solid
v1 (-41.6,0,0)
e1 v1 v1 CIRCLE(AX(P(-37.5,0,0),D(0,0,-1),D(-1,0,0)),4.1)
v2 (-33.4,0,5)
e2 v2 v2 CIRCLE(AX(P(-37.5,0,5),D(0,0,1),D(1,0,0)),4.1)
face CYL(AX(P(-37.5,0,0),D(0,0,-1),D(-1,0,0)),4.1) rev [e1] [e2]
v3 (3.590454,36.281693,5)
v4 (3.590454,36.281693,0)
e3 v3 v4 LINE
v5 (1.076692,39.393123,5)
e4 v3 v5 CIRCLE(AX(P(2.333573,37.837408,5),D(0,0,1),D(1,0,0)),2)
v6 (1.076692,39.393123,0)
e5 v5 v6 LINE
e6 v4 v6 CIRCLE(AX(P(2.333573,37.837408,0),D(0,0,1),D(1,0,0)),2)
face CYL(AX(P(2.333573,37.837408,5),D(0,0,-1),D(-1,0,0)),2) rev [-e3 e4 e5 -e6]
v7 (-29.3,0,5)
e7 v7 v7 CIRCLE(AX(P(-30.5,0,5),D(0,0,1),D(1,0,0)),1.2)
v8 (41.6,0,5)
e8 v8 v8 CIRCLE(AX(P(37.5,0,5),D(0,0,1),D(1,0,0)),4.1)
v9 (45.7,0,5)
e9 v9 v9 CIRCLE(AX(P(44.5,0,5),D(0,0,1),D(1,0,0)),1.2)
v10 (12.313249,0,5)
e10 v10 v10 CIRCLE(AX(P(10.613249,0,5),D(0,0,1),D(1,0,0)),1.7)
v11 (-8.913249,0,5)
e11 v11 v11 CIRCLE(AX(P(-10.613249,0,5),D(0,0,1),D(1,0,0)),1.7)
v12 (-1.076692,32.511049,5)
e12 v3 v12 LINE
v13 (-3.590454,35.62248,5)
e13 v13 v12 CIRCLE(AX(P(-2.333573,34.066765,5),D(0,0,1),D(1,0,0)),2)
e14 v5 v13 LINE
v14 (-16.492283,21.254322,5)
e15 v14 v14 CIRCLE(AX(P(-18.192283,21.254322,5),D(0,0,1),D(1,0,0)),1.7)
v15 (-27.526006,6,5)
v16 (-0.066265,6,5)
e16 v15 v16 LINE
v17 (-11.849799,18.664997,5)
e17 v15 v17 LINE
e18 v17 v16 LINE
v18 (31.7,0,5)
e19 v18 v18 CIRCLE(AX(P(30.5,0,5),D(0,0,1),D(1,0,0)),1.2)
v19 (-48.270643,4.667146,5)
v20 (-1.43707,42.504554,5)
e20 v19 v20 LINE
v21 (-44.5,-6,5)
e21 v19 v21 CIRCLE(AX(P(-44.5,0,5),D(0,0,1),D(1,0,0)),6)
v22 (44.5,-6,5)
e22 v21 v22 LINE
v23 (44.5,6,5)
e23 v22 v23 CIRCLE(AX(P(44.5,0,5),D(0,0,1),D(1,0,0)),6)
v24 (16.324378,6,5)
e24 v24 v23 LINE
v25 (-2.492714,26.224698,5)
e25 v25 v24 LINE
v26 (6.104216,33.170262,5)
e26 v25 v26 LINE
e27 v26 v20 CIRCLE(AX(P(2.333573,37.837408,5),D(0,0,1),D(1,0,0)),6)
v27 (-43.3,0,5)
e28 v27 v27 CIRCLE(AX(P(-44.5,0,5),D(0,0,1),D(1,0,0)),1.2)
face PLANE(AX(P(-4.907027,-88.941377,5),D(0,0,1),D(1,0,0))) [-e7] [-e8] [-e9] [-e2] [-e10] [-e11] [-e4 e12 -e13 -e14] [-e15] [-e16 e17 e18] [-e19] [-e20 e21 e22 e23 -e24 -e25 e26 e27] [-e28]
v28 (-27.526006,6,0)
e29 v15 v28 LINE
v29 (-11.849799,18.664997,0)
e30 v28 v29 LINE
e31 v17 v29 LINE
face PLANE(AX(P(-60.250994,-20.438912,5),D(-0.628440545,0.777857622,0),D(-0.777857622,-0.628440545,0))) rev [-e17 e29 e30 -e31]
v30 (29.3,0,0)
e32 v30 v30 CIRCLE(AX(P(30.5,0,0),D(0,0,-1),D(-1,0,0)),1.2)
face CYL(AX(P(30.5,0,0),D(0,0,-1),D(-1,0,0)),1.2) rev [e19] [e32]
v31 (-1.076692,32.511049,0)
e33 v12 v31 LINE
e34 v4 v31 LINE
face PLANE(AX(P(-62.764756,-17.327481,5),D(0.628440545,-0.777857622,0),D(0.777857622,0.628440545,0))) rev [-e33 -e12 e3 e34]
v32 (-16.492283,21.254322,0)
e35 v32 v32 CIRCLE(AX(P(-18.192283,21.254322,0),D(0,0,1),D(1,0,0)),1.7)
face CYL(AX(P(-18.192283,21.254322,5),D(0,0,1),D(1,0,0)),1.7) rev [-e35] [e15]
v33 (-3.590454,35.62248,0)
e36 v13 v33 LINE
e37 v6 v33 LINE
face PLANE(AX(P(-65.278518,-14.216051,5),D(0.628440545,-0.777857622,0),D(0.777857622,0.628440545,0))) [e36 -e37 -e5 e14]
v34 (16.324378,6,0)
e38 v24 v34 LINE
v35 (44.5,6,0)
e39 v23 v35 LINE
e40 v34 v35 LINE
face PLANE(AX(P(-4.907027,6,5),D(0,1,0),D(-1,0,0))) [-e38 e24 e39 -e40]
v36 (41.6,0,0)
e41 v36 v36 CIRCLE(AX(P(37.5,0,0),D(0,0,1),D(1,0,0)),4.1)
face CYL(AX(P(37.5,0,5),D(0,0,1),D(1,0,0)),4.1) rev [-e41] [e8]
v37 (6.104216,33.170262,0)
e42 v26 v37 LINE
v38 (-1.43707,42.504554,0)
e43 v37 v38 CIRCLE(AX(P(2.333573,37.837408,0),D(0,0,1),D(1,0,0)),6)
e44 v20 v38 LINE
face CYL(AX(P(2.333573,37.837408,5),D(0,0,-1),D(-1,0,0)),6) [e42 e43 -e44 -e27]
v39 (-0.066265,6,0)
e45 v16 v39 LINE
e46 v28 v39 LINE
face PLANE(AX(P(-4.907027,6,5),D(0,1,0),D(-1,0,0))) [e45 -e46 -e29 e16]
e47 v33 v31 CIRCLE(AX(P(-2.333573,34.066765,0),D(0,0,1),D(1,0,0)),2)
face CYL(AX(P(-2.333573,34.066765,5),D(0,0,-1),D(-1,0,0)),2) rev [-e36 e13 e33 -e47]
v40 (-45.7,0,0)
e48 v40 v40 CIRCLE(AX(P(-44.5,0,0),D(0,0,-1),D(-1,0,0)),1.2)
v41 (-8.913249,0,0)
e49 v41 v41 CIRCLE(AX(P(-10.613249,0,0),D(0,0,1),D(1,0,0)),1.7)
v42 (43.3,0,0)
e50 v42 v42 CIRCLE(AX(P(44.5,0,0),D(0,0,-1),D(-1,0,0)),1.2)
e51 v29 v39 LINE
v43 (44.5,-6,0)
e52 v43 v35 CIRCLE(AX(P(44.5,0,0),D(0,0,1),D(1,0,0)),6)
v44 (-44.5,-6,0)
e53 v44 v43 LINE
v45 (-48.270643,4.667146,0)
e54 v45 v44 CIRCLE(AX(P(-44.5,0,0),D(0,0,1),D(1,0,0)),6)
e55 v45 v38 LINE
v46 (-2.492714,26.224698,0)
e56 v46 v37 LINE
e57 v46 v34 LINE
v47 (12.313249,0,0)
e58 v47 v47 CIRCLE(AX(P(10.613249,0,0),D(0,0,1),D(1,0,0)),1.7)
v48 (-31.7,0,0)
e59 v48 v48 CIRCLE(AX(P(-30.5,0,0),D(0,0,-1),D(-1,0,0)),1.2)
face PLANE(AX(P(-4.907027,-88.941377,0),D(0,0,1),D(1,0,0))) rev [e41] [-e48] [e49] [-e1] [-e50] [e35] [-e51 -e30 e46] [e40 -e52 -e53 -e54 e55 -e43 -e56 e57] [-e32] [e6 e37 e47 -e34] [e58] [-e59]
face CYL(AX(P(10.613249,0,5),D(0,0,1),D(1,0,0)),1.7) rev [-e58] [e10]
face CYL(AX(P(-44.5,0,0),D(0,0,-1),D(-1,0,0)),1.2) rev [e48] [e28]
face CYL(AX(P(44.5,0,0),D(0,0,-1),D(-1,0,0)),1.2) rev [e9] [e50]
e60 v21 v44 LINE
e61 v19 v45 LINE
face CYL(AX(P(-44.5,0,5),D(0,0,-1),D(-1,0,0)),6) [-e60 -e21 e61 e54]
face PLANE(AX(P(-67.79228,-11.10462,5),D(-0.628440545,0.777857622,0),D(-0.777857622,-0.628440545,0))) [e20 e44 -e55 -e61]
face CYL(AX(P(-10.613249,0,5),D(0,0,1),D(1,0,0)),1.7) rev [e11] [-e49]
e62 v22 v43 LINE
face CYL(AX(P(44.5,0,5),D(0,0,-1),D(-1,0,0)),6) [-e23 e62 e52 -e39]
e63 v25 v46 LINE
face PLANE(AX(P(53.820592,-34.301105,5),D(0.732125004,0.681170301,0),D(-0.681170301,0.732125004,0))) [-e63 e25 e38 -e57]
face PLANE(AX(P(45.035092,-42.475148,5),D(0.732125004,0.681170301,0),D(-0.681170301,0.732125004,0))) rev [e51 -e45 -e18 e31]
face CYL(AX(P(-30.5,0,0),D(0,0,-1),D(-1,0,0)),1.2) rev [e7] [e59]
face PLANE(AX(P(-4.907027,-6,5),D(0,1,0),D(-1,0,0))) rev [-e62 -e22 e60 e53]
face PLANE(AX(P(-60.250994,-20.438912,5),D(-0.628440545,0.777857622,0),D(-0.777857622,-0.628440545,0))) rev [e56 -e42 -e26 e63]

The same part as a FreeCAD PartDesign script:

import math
import FreeCAD as App
import Part
import Sketcher


def add_polygon(sketch, points):
    """Adds a closed chain of lines whose ends are joined by coincident constraints."""
    first, n = sketch.GeometryCount, len(points)
    for a, b in zip(points, points[1:] + points[:1]):
        sketch.addGeometry(Part.LineSegment(App.Vector(*a, 0), App.Vector(*b, 0)), False)
    for i in range(n):
        sketch.addConstraint(Sketcher.Constraint("Coincident", first + i, 2, first + (i + 1) % n, 1))

doc = App.newDocument("Part")
body = doc.addObject("PartDesign::Body", "Body")

# Sketch on XY plane
sketch1 = body.newObject("Sketcher::SketchObject", "Sketch")
sketch1.AttachmentSupport = (doc.getObject("XY_Plane"), [""])
sketch1.MapMode = "FlatFace"
sketch1.addGeometry(Part.LineSegment(App.Vector(-2.5, 26.2, 0), App.Vector(6.1, 33.2, 0)), False)  # 0
sketch1.addGeometry(Part.ArcOfCircle(Part.Circle(App.Vector(2.3, 37.8, 0), App.Vector(0, 0, 1), 6), math.radians(-51), math.radians(129)), False)  # 1
sketch1.addGeometry(Part.LineSegment(App.Vector(-1.4, 42.5, 0), App.Vector(-48.3, 4.7, 0)), False)  # 2
sketch1.addGeometry(Part.ArcOfCircle(Part.Circle(App.Vector(-44.5, 0, 0), App.Vector(0, 0, 1), 6), math.radians(129), math.radians(270)), False)  # 3
sketch1.addGeometry(Part.LineSegment(App.Vector(-44.5, -6, 0), App.Vector(44.5, -6, 0)), False)  # 4
sketch1.addGeometry(Part.ArcOfCircle(Part.Circle(App.Vector(44.5, 0, 0), App.Vector(0, 0, 1), 6), math.radians(-90), math.radians(90)), False)  # 5
sketch1.addGeometry(Part.LineSegment(App.Vector(44.5, 6, 0), App.Vector(16.3, 6, 0)), False)  # 6
sketch1.addGeometry(Part.LineSegment(App.Vector(16.3, 6, 0), App.Vector(-2.5, 26.2, 0)), False)  # 7
add_polygon(sketch1, [(-0.1, 6), (-27.5, 6), (-11.8, 18.7)])  # lines 8-10
sketch1.addGeometry(Part.ArcOfCircle(Part.Circle(App.Vector(-2.3, 34.1, 0), App.Vector(0, 0, 1), 2), math.radians(129), math.radians(309)), False)  # 11
sketch1.addGeometry(Part.LineSegment(App.Vector(-3.6, 35.6, 0), App.Vector(1.1, 39.4, 0)), False)  # 12
sketch1.addGeometry(Part.ArcOfCircle(Part.Circle(App.Vector(2.3, 37.8, 0), App.Vector(0, 0, 1), 2), math.radians(-51), math.radians(129)), False)  # 13
sketch1.addGeometry(Part.LineSegment(App.Vector(3.6, 36.3, 0), App.Vector(-1.1, 32.5, 0)), False)  # 14
sketch1.addConstraint([
    Sketcher.Constraint("Tangent", 0, 2, 1, 1),
    Sketcher.Constraint("Tangent", 1, 2, 2, 1),
    Sketcher.Constraint("Tangent", 2, 2, 3, 1),
    Sketcher.Constraint("Tangent", 3, 2, 4, 1),
    Sketcher.Constraint("Tangent", 4, 2, 5, 1),
    Sketcher.Constraint("Tangent", 5, 2, 6, 1),
    Sketcher.Constraint("Coincident", 6, 2, 7, 1),
    Sketcher.Constraint("Coincident", 7, 2, 0, 1),
    Sketcher.Constraint("Tangent", 11, 1, 12, 1),
    Sketcher.Constraint("Tangent", 12, 2, 13, 2),
    Sketcher.Constraint("Tangent", 13, 1, 14, 1),
    Sketcher.Constraint("Tangent", 14, 2, 11, 2),
    Sketcher.Constraint("Horizontal", 4),
    Sketcher.Constraint("Horizontal", 6),
    Sketcher.Constraint("Horizontal", 8),
    Sketcher.Constraint("Coincident", 13, 3, 1, 3),
    Sketcher.Constraint("Equal", 1, 3),
    Sketcher.Constraint("Equal", 3, 5),
    Sketcher.Constraint("Equal", 11, 13),
    Sketcher.Constraint("Symmetric", 3, 3, 5, 3, -1, 1),
    Sketcher.Constraint("Parallel", 0, 2),
    Sketcher.Constraint("Parallel", 2, 9),
    Sketcher.Constraint("Parallel", 7, 10),
    Sketcher.Constraint("Parallel", 9, 12),
    Sketcher.Constraint("Horizontal", 6, 2, 8, 2),
    Sketcher.Constraint("Radius", 1, 6.0),
    Sketcher.Constraint("Radius", 11, 2.0),
    Sketcher.Constraint("DistanceX", 4, 1, 4, 2, 89.0),
    Sketcher.Constraint("Distance", 12, 6.0),
    Sketcher.Constraint("DistanceX", 6, 2, 6, 1, 28.175622),
    Sketcher.Constraint("DistanceX", 8, 2, 8, 1, 27.459741),
    Sketcher.Constraint("DistanceY", -1, 1, 7, 2, 26.224698),
    Sketcher.Constraint("DistanceX", 9, 2, -1, 1, 11.849799),
    Sketcher.Constraint("DistanceY", 9, 2, 7, 2, 7.559702),
    Sketcher.Constraint("Distance", 0, 11.052062),
])
pad1 = body.newObject("PartDesign::Pad", "Pad")
pad1.Profile = sketch1
pad1.Length = 5

# Sketch on XY plane
sketch2 = body.newObject("Sketcher::SketchObject", "Sketch001")
sketch2.AttachmentSupport = (doc.getObject("XY_Plane"), [""])
sketch2.MapMode = "FlatFace"
sketch2.addGeometry([
    Part.Circle(App.Vector(-44.5, 0, 0), App.Vector(0, 0, 1), 1.2),
    Part.Circle(App.Vector(-30.5, 0, 0), App.Vector(0, 0, 1), 1.2),
], False)
sketch2.addConstraint([
    Sketcher.Constraint("Equal", 0, 1),
    Sketcher.Constraint("PointOnObject", 0, 3, -1),
    Sketcher.Constraint("PointOnObject", 1, 3, -1),
    Sketcher.Constraint("Diameter", 0, 2.4),
    Sketcher.Constraint("DistanceX", 0, 3, 1, 3, 14.0),
    Sketcher.Constraint("DistanceX", 0, 3, -1, 1, 44.5),
])
doc.recompute()
hole = body.newObject("PartDesign::Hole", "Hole")
hole.Profile = sketch2
hole.ThreadType = "None"
hole.Diameter = 2.4
hole.DepthType = "Dimension"
hole.Depth = 10
hole.DrillPoint = "Angled"
hole.DrillPointAngle = 118
hole.Reversed = True

# Sketch on XY plane
sketch3 = body.newObject("Sketcher::SketchObject", "Sketch002")
sketch3.AttachmentSupport = (doc.getObject("XY_Plane"), [""])
sketch3.MapMode = "FlatFace"
sketch3.addGeometry(Part.Circle(App.Vector(-37.5, 0, 0), App.Vector(0, 0, 1), 4.1), False)
sketch3.addConstraint([
    Sketcher.Constraint("PointOnObject", 0, 3, -1),
    Sketcher.Constraint("Diameter", 0, 8.2),
    Sketcher.Constraint("DistanceX", 0, 3, -1, 1, 37.5),
])
doc.recompute()
hole2 = body.newObject("PartDesign::Hole", "Hole001")
hole2.Profile = sketch3
hole2.ThreadType = "None"
hole2.Diameter = 8.2
hole2.DepthType = "Dimension"
hole2.Depth = 10
hole2.DrillPoint = "Angled"
hole2.DrillPointAngle = 118
hole2.Reversed = True

# Sketch on XY plane
sketch4 = body.newObject("Sketcher::SketchObject", "Sketch003")
sketch4.AttachmentSupport = (doc.getObject("XY_Plane"), [""])
sketch4.MapMode = "FlatFace"
sketch4.addGeometry([
    Part.Circle(App.Vector(44.5, 0, 0), App.Vector(0, 0, 1), 1.2),
    Part.Circle(App.Vector(30.5, 0, 0), App.Vector(0, 0, 1), 1.2),
], False)
sketch4.addConstraint([
    Sketcher.Constraint("Equal", 0, 1),
    Sketcher.Constraint("PointOnObject", 0, 3, -1),
    Sketcher.Constraint("PointOnObject", 1, 3, -1),
    Sketcher.Constraint("Diameter", 0, 2.4),
    Sketcher.Constraint("DistanceX", 1, 3, 0, 3, 14.0),
    Sketcher.Constraint("DistanceX", -1, 1, 0, 3, 44.5),
])
doc.recompute()
hole3 = body.newObject("PartDesign::Hole", "Hole002")
hole3.Profile = sketch4
hole3.ThreadType = "None"
hole3.Diameter = 2.4
hole3.DepthType = "Dimension"
hole3.Depth = 10
hole3.DrillPoint = "Angled"
hole3.DrillPointAngle = 118
hole3.Reversed = True

# Sketch on XY plane
sketch5 = body.newObject("Sketcher::SketchObject", "Sketch004")
sketch5.AttachmentSupport = (doc.getObject("XY_Plane"), [""])
sketch5.MapMode = "FlatFace"
sketch5.AttachmentOffset = App.Placement(App.Vector(0, 0, 5), App.Rotation())
sketch5.addGeometry(Part.Circle(App.Vector(37.5, 0, 0), App.Vector(0, 0, 1), 4.1), False)
sketch5.addConstraint([
    Sketcher.Constraint("PointOnObject", 0, 3, -1),
    Sketcher.Constraint("Diameter", 0, 8.2),
    Sketcher.Constraint("DistanceX", -1, 1, 0, 3, 37.5),
])
doc.recompute()
hole4 = body.newObject("PartDesign::Hole", "Hole003")
hole4.Profile = sketch5
hole4.ThreadType = "None"
hole4.Diameter = 8.2
hole4.DepthType = "Dimension"
hole4.Depth = 10
hole4.DrillPoint = "Angled"
hole4.DrillPointAngle = 118

# Sketch on XY plane
sketch6 = body.newObject("Sketcher::SketchObject", "Sketch005")
sketch6.AttachmentSupport = (doc.getObject("XY_Plane"), [""])
sketch6.MapMode = "FlatFace"
sketch6.AttachmentOffset = App.Placement(App.Vector(0, 0, 5), App.Rotation())
sketch6.addGeometry([
    Part.Circle(App.Vector(-18.2, 21.3, 0), App.Vector(0, 0, 1), 1.7),
    Part.Circle(App.Vector(10.6, 0, 0), App.Vector(0, 0, 1), 1.7),
    Part.Circle(App.Vector(-10.6, 0, 0), App.Vector(0, 0, 1), 1.7),
], False)
sketch6.addConstraint([
    Sketcher.Constraint("Equal", 0, 1),
    Sketcher.Constraint("Equal", 1, 2),
    Sketcher.Constraint("Symmetric", 1, 3, 2, 3, -1, 1),
    Sketcher.Constraint("PointOnObject", 1, 3, -1),
    Sketcher.Constraint("Diameter", 0, 3.4),
    Sketcher.Constraint("DistanceY", -1, 1, 0, 3, 21.254322),
    Sketcher.Constraint("DistanceX", -1, 1, 1, 3, 10.613249),
    Sketcher.Constraint("DistanceX", 0, 3, 1, 3, 28.805531),
])
doc.recompute()
hole5 = body.newObject("PartDesign::Hole", "Hole004")
hole5.Profile = sketch6
hole5.ThreadType = "None"
hole5.Diameter = 3.4
hole5.DepthType = "Dimension"
hole5.Depth = 5
hole5.DrillPoint = "Angled"
hole5.DrillPointAngle = 118

doc.recompute()
